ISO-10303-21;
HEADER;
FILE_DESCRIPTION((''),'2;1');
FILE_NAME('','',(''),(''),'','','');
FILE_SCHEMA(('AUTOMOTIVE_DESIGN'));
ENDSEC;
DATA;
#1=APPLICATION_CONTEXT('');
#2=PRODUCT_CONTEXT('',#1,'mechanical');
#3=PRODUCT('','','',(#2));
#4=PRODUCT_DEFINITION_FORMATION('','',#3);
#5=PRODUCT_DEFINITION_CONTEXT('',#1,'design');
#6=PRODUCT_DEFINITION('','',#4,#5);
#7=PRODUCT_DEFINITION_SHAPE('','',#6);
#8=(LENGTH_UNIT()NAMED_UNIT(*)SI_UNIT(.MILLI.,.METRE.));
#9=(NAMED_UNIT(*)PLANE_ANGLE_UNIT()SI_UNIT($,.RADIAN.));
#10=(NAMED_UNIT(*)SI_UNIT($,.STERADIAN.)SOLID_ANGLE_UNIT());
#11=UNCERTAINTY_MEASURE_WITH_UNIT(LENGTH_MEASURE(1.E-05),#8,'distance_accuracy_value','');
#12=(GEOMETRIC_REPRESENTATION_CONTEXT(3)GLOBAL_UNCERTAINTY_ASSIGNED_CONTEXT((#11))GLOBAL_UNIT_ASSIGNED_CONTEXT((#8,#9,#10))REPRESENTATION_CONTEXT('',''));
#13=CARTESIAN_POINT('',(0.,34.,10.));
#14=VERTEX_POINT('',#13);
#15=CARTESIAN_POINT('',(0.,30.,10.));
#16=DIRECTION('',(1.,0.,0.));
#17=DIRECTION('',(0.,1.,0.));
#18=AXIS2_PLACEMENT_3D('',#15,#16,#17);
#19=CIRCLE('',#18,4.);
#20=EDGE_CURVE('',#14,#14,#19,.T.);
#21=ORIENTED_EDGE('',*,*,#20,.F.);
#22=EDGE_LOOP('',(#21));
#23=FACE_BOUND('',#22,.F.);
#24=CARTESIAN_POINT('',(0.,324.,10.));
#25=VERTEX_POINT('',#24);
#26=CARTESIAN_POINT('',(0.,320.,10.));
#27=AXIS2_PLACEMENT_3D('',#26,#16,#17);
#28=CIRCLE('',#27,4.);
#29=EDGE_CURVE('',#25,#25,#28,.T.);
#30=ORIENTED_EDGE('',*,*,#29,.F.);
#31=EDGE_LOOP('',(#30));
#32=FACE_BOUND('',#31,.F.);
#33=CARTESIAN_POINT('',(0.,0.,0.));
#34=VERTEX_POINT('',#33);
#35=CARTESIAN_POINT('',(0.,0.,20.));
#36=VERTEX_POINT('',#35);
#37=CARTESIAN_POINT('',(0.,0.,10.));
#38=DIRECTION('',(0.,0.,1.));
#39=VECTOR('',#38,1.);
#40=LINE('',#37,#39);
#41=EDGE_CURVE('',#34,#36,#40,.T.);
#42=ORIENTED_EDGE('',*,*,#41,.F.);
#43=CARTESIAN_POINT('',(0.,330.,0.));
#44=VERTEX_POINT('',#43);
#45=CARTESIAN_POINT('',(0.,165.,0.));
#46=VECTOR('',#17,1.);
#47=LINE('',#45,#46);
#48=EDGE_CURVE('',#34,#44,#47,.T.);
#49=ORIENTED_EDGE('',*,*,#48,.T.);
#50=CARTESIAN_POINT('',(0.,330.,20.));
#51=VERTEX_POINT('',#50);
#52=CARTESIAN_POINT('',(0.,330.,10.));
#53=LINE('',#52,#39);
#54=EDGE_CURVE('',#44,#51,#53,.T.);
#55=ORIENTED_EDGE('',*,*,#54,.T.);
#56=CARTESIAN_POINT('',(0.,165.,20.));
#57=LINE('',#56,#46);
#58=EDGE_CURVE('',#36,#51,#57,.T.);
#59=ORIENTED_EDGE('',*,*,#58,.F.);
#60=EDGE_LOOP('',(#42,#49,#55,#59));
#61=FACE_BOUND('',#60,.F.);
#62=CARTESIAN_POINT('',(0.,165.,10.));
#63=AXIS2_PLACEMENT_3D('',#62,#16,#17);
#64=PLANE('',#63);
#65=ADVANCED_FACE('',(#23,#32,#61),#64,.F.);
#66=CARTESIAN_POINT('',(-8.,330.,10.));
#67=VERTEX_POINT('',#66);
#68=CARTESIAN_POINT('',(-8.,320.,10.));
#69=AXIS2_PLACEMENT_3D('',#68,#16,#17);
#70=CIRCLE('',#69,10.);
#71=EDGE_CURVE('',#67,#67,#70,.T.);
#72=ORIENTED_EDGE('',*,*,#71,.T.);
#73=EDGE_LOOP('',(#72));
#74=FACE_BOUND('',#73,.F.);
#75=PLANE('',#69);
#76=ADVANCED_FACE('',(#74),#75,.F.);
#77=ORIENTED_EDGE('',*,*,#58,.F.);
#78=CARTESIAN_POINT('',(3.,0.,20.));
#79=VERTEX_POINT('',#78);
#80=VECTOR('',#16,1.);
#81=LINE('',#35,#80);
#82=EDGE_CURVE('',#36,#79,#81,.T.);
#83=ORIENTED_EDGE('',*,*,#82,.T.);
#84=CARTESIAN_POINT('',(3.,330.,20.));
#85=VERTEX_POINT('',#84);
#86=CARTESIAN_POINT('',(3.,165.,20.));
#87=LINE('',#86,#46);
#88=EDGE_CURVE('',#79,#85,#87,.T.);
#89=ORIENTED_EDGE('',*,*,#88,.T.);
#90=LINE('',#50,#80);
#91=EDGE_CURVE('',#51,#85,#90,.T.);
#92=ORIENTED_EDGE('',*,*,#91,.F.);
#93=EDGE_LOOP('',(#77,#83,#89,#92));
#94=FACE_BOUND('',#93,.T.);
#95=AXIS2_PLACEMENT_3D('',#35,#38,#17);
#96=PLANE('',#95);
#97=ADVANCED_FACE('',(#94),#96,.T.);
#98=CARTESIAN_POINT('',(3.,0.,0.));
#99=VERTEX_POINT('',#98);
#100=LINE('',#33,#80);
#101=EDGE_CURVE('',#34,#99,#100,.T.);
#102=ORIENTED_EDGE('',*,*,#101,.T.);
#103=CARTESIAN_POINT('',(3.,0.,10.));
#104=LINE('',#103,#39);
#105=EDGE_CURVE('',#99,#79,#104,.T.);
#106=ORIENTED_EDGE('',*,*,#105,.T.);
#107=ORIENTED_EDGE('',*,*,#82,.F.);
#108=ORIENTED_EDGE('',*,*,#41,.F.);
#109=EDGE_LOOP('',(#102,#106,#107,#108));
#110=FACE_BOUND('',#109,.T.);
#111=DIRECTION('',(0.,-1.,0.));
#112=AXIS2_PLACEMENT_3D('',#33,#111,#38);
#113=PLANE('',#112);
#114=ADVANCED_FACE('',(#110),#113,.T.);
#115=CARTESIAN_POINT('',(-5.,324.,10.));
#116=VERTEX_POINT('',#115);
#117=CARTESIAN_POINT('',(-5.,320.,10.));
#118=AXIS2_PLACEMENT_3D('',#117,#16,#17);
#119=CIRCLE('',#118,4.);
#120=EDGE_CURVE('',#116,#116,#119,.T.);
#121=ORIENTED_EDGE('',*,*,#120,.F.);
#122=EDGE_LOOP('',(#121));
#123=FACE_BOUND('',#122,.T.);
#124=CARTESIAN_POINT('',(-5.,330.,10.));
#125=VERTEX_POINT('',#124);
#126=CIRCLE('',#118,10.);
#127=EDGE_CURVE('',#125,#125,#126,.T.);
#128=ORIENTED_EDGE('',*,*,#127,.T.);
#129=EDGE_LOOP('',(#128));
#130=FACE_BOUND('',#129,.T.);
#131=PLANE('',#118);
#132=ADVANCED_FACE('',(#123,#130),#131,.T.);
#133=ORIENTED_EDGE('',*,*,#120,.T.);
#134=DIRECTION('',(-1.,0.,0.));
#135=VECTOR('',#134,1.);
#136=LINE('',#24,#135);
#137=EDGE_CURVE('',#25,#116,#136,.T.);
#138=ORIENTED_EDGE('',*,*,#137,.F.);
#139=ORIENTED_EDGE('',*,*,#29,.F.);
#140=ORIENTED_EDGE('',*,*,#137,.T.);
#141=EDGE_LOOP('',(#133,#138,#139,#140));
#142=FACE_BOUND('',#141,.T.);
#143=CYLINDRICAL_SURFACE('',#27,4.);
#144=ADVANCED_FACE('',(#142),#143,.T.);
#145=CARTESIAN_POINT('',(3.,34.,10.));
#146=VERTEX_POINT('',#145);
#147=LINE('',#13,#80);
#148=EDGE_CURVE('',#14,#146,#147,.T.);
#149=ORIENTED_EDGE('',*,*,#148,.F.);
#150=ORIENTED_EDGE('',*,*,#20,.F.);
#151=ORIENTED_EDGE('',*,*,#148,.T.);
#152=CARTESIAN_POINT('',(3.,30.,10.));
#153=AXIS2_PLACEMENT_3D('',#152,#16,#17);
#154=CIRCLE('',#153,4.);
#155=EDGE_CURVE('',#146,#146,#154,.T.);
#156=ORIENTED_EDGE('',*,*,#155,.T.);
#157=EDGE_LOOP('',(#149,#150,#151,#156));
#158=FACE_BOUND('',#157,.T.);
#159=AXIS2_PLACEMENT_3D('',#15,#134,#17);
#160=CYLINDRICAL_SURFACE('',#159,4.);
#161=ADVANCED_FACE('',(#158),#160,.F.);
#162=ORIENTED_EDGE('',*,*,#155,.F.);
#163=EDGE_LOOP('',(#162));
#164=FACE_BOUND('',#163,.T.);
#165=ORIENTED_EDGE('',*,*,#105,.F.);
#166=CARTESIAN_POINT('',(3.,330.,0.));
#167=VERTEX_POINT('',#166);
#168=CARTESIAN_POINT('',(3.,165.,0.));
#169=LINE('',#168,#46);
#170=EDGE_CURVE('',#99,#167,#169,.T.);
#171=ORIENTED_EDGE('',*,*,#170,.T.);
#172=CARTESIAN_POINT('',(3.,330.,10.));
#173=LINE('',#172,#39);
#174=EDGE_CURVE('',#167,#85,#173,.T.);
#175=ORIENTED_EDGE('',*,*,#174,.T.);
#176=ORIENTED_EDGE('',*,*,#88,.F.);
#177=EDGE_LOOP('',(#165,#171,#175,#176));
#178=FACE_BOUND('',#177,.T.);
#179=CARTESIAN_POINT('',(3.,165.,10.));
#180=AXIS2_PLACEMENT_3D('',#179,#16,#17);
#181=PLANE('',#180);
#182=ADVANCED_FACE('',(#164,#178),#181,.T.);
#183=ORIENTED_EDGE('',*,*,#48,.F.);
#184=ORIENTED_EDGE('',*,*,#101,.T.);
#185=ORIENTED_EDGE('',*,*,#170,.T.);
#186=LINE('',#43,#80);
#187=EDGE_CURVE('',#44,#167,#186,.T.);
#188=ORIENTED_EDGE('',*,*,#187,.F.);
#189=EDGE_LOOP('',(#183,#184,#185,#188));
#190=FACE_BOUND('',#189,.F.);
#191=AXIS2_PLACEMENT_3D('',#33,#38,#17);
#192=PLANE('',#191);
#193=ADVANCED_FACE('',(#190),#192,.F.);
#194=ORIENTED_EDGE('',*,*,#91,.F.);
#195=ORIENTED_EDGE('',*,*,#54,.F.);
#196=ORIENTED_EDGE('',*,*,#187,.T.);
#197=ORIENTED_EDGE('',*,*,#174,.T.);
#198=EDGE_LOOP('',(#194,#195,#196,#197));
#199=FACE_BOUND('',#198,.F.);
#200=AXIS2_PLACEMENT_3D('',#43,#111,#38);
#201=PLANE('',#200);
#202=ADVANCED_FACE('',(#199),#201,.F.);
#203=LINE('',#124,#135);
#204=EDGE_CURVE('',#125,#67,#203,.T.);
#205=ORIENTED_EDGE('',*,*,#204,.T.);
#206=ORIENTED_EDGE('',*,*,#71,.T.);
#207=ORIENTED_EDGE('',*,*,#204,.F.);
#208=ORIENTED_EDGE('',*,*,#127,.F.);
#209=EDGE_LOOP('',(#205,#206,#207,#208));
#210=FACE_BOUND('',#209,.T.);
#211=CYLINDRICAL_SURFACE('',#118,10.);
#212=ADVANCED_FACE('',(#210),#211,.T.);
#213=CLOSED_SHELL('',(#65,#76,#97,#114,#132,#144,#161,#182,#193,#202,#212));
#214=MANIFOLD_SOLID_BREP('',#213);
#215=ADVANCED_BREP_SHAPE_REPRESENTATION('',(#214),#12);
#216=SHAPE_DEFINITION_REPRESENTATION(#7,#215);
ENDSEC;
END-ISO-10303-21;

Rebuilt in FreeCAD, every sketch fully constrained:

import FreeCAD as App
import Part
import Sketcher

V = App.Vector
Q = App.Units.Quantity


def add_polygon(sketch, points):
    """Adds a closed chain of lines whose ends are joined by coincident constraints."""
    first, n = sketch.GeometryCount, len(points)
    for a, b in zip(points, points[1:] + points[:1]):
        sketch.addGeometry(Part.LineSegment(App.Vector(*a, 0), App.Vector(*b, 0)), False)
    for i in range(n):
        sketch.addConstraint(Sketcher.Constraint("Coincident", first + i, 2, first + (i + 1) % n, 1))

doc = App.newDocument("Part")
body = doc.addObject("PartDesign::Body", "Body")

# Sketch on YZ plane
sketch1 = doc.addObject("Sketcher::SketchObject", "Sketch")
body.addObject(sketch1)
sketch1.AttachmentSupport = (doc.YZ_Plane, [""])
sketch1.MapMode = "FlatFace"
add_polygon(sketch1, [(0, 20), (0, 0), (330, 0), (330, 20)])  # lines 0-3
sketch1.addGeometry(Part.Circle(V(30, 10, 0), V(0, 0, 1), 4), False)  # 4
sketch1.addConstraint(Sketcher.Constraint("Vertical", 0))
sketch1.addConstraint(Sketcher.Constraint("Horizontal", 1))
sketch1.addConstraint(Sketcher.Constraint("Vertical", 2))
sketch1.addConstraint(Sketcher.Constraint("Horizontal", 3))
sketch1.addConstraint(Sketcher.Constraint("Coincident", 0, 2, -1, 1))
sketch1.addConstraint(Sketcher.Constraint("Diameter", 4, Q("8 mm")))
sketch1.addConstraint(Sketcher.Constraint("DistanceX", 1, 1, 1, 2, Q("330 mm")))
sketch1.addConstraint(Sketcher.Constraint("DistanceY", 0, 2, 0, 1, Q("20 mm")))
sketch1.addConstraint(Sketcher.Constraint("DistanceX", -1, 1, 4, 3, Q("30 mm")))
sketch1.addConstraint(Sketcher.Constraint("DistanceY", -1, 1, 4, 3, Q("10 mm")))
pad1 = doc.addObject("PartDesign::Pad", "Pad")
body.addObject(pad1)
pad1.Profile = sketch1
pad1.Length = 3

# Sketch on YZ plane
sketch2 = doc.addObject("Sketcher::SketchObject", "Sketch001")
body.addObject(sketch2)
sketch2.AttachmentSupport = (doc.YZ_Plane, [""])
sketch2.MapMode = "FlatFace"
sketch2.addGeometry(Part.Circle(V(320, 10, 0), V(0, 0, 1), 4), False)
sketch2.addConstraint(Sketcher.Constraint("Diameter", 0, Q("8 mm")))
sketch2.addConstraint(Sketcher.Constraint("DistanceX", -1, 1, 0, 3, Q("320 mm")))
sketch2.addConstraint(Sketcher.Constraint("DistanceY", -1, 1, 0, 3, Q("10 mm")))
pad2 = doc.addObject("PartDesign::Pad", "Pad001")
body.addObject(pad2)
pad2.Profile = sketch2
pad2.Length = 5
pad2.Reversed = True

# Sketch on YZ plane
sketch3 = doc.addObject("Sketcher::SketchObject", "Sketch002")
body.addObject(sketch3)
sketch3.AttachmentSupport = (doc.YZ_Plane, [""])
sketch3.MapMode = "FlatFace"
sketch3.AttachmentOffset = App.Placement(V(0, 0, -5), App.Rotation())
sketch3.addGeometry(Part.Circle(V(320, 10, 0), V(0, 0, 1), 10), False)
sketch3.addConstraint(Sketcher.Constraint("Diameter", 0, Q("20 mm")))
sketch3.addConstraint(Sketcher.Constraint("DistanceX", -1, 1, 0, 3, Q("320 mm")))
sketch3.addConstraint(Sketcher.Constraint("DistanceY", -1, 1, 0, 3, Q("10 mm")))
pad3 = doc.addObject("PartDesign::Pad", "Pad002")
body.addObject(pad3)
pad3.Profile = sketch3
pad3.Length = 3
pad3.Reversed = True

doc.recompute()
